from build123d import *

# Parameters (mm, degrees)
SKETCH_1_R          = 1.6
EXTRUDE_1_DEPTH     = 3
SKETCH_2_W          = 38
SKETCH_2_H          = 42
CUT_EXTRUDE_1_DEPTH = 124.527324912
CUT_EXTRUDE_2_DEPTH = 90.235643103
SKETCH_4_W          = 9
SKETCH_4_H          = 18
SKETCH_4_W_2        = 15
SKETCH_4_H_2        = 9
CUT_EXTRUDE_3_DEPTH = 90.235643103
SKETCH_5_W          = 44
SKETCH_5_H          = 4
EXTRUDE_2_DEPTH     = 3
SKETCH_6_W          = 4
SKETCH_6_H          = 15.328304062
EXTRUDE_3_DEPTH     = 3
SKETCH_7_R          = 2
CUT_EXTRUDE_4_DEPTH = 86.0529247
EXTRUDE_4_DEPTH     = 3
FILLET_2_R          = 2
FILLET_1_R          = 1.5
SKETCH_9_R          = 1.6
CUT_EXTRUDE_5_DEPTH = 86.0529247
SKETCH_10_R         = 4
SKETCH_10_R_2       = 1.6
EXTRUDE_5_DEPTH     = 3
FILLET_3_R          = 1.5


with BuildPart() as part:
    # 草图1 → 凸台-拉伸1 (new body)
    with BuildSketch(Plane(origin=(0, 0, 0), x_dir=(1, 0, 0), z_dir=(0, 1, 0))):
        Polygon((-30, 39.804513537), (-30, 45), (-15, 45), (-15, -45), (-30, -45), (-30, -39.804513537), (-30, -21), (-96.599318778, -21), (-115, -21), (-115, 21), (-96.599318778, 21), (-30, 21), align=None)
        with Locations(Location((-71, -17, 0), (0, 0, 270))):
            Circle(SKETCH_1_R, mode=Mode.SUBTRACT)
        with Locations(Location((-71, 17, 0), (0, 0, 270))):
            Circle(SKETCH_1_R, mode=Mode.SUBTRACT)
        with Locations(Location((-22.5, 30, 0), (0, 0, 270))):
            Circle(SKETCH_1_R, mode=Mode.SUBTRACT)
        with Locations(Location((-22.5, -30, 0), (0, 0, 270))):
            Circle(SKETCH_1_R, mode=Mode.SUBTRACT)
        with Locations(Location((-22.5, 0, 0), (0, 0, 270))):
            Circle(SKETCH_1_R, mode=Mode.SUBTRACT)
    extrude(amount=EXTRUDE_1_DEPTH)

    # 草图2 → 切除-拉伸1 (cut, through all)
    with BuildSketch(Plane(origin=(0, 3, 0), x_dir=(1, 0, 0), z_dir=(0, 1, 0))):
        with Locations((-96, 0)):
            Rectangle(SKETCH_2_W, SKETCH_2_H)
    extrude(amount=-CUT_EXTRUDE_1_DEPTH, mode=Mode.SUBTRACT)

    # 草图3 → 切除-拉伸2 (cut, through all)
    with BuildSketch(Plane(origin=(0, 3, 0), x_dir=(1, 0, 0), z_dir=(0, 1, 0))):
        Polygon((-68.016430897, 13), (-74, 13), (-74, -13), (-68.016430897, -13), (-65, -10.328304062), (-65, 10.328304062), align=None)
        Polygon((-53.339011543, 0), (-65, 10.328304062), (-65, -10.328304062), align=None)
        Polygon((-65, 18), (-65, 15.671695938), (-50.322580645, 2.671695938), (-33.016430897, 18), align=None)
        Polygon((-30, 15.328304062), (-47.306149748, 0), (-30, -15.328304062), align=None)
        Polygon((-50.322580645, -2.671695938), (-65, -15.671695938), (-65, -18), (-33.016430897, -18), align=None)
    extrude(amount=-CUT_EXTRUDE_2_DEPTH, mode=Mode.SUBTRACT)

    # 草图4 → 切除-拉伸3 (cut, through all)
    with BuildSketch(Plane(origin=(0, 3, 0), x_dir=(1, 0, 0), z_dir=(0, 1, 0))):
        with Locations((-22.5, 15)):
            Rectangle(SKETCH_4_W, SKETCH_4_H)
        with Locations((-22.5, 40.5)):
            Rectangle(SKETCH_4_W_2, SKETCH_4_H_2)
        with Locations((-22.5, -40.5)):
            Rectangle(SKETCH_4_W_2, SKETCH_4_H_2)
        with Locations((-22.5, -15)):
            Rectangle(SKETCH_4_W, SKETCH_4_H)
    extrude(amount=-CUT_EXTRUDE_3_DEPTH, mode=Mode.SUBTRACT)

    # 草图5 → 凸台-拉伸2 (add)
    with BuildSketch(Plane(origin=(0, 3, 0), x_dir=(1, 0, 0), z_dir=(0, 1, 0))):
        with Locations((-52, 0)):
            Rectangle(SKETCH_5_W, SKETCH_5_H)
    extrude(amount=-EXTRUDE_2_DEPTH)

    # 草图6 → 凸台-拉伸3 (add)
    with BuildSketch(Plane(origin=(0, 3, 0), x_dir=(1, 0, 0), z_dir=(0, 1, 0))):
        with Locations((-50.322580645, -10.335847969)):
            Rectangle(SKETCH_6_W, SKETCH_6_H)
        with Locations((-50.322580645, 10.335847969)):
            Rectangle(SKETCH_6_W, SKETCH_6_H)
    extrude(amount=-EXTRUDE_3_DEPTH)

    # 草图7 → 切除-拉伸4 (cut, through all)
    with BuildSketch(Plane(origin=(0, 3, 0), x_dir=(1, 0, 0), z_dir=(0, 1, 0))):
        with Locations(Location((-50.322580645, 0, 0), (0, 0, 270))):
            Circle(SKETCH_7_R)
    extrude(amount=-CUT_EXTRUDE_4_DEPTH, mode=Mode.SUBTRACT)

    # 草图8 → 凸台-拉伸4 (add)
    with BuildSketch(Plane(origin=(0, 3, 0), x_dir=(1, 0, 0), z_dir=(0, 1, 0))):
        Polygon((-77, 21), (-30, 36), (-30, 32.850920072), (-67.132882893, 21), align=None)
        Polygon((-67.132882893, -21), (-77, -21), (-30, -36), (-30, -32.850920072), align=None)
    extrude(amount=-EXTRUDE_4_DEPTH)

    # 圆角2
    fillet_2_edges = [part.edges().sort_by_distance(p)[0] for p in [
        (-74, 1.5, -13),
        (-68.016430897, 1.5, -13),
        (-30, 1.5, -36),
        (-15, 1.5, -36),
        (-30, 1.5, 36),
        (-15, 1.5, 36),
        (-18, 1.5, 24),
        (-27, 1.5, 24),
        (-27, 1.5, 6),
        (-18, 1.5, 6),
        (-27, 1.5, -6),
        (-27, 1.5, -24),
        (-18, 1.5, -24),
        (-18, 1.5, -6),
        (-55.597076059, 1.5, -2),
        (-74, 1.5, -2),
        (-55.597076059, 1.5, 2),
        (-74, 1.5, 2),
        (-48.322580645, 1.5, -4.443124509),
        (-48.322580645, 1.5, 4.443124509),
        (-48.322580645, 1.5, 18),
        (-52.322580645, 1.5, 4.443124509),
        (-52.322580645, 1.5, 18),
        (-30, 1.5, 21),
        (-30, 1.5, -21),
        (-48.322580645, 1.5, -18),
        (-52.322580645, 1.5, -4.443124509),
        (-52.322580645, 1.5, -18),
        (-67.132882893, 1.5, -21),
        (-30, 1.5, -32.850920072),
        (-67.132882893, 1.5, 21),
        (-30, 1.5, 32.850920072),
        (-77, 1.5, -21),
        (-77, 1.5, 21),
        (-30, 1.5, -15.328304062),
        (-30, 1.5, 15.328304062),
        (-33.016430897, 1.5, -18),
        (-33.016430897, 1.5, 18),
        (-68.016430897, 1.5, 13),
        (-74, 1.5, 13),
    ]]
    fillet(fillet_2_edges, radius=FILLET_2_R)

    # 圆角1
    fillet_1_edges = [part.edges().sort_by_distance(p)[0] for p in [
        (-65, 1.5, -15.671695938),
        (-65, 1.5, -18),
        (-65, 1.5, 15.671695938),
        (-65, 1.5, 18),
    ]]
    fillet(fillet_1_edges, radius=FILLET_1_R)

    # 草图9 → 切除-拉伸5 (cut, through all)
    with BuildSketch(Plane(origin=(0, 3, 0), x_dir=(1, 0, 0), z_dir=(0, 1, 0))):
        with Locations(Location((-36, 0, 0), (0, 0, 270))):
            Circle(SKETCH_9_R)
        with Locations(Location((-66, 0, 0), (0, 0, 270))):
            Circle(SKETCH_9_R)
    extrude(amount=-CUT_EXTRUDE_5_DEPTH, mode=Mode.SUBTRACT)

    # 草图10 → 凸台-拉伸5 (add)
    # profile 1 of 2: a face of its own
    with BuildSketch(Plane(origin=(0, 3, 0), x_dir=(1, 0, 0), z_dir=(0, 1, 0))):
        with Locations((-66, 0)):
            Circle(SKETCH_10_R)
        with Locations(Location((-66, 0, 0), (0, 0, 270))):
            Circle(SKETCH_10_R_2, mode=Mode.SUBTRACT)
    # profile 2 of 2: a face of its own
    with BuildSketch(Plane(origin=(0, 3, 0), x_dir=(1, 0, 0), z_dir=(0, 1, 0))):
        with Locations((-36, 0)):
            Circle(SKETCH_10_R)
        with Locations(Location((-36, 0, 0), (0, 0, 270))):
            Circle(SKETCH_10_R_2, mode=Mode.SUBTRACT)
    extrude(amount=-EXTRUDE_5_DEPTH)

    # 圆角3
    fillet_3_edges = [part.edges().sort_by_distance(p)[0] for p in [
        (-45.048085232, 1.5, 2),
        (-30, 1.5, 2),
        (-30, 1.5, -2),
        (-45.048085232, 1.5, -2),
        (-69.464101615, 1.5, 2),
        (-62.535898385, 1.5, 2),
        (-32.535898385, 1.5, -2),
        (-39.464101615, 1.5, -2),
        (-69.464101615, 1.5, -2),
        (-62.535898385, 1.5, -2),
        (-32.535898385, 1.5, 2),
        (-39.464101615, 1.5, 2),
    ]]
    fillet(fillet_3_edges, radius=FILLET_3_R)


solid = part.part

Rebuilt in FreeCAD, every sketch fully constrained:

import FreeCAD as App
import Part
import Sketcher
from FreeCAD import Vector
Q = App.Units.Quantity


def edges_at(feature, points):
    """Names of the edges that pass closest to the given points."""
    edges = feature.Shape.Edges
    near = lambda p: min(range(len(edges)), key=lambda i: edges[i].distToShape(Part.Vertex(*p))[0])
    return sorted({f"Edge{near(p) + 1}" for p in points})

doc = App.newDocument("Part")
body = doc.addObject("PartDesign::Body", "Body")

sketch1 = body.newObject("Sketcher::SketchObject", "Sketch")
sketch1.AttachmentSupport = (doc.getObject("XZ_Plane"), [""])
sketch1.MapMode = "FlatFace"
sketch1.addGeometry([
    Part.LineSegment(Vector(-30, -45, 0), Vector(-30, -21, 0)),
    Part.LineSegment(Vector(-30, -21, 0), Vector(-115, -21, 0)),
    Part.LineSegment(Vector(-115, -21, 0), Vector(-115, 21, 0)),
    Part.LineSegment(Vector(-115, 21, 0), Vector(-30, 21, 0)),
    Part.LineSegment(Vector(-30, 21, 0), Vector(-30, 45, 0)),
    Part.LineSegment(Vector(-30, 45, 0), Vector(-15, 45, 0)),
    Part.LineSegment(Vector(-15, 45, 0), Vector(-15, -45, 0)),
    Part.LineSegment(Vector(-15, -45, 0), Vector(-30, -45, 0)),
    Part.Circle(Vector(-22.5, 30, 0), Vector(0, 0, 1), 1.6),
    Part.Circle(Vector(-22.5, 0, 0), Vector(0, 0, 1), 1.6),
    Part.Circle(Vector(-71, 17, 0), Vector(0, 0, 1), 1.6),
    Part.Circle(Vector(-22.5, -30, 0), Vector(0, 0, 1), 1.6),
    Part.Circle(Vector(-71, -17, 0), Vector(0, 0, 1), 1.6),
], False)
sketch1.addConstraint([
    Sketcher.Constraint("Coincident", 0, 2, 1, 1),
    Sketcher.Constraint("Coincident", 1, 2, 2, 1),
    Sketcher.Constraint("Coincident", 2, 2, 3, 1),
    Sketcher.Constraint("Coincident", 3, 2, 4, 1),
    Sketcher.Constraint("Coincident", 4, 2, 5, 1),
    Sketcher.Constraint("Coincident", 5, 2, 6, 1),
    Sketcher.Constraint("Coincident", 6, 2, 7, 1),
    Sketcher.Constraint("Coincident", 7, 2, 0, 1),
    Sketcher.Constraint("Vertical", 0),
    Sketcher.Constraint("Horizontal", 1),
    Sketcher.Constraint("Vertical", 2),
    Sketcher.Constraint("Horizontal", 3),
    Sketcher.Constraint("Vertical", 4),
    Sketcher.Constraint("Horizontal", 5),
    Sketcher.Constraint("Vertical", 6),
    Sketcher.Constraint("Horizontal", 7),
    Sketcher.Constraint("Equal", 8, 9),
    Sketcher.Constraint("Equal", 9, 10),
    Sketcher.Constraint("Equal", 10, 11),
    Sketcher.Constraint("Equal", 11, 12),
    Sketcher.Constraint("Symmetric", 8, 3, 11, 3, -1),
    Sketcher.Constraint("Symmetric", 10, 3, 12, 3, -1),
    Sketcher.Constraint("Symmetric", 0, 2, 3, 2, -1),
    Sketcher.Constraint("PointOnObject", 9, 3, -1),
    Sketcher.Constraint("Vertical", 8, 3, 9, 3),
    Sketcher.Constraint("Equal", 0, 4),
    Sketcher.Constraint("Diameter", 8, Q("3.2 mm")),
    Sketcher.Constraint("DistanceX", 1, 2, 1, 1, Q("85 mm")),
    Sketcher.Constraint("DistanceX", 5, 1, 5, 2, Q("15 mm")),
    Sketcher.Constraint("DistanceY", 0, 1, 0, 2, Q("24 mm")),
    Sketcher.Constraint("DistanceY", 2, 1, 2, 2, Q("42 mm")),
    Sketcher.Constraint("DistanceY", -1, 1, 8, 3, Q("30 mm")),
    Sketcher.Constraint("DistanceX", 10, 3, -1, 1, Q("71 mm")),
    Sketcher.Constraint("DistanceY", -1, 1, 10, 3, Q("17 mm")),
    Sketcher.Constraint("DistanceX", 0, 2, -1, 1, Q("30 mm")),
    Sketcher.Constraint("DistanceX", 8, 3, -1, 1, Q("22.5 mm")),
])
pad1 = body.newObject("PartDesign::Pad", "Pad")
pad1.Profile = sketch1
pad1.Length = 3
pad1.Reversed = True

sketch2 = body.newObject("Sketcher::SketchObject", "Sketch001")
sketch2.AttachmentSupport = (doc.getObject("XZ_Plane"), [""])
sketch2.MapMode = "FlatFace"
sketch2.AttachmentOffset = App.Placement(Vector(0, 0, -3), App.Rotation())
sketch2.addGeometry([
    Part.LineSegment(Vector(-115, -21, 0), Vector(-115, 21, 0)),
    Part.LineSegment(Vector(-115, 21, 0), Vector(-77, 21, 0)),
    Part.LineSegment(Vector(-77, 21, 0), Vector(-77, -21, 0)),
    Part.LineSegment(Vector(-77, -21, 0), Vector(-115, -21, 0)),
], False)
sketch2.addConstraint([
    Sketcher.Constraint("Coincident", 0, 2, 1, 1),
    Sketcher.Constraint("Coincident", 1, 2, 2, 1),
    Sketcher.Constraint("Coincident", 2, 2, 3, 1),
    Sketcher.Constraint("Coincident", 3, 2, 0, 1),
    Sketcher.Constraint("Vertical", 0),
    Sketcher.Constraint("Horizontal", 1),
    Sketcher.Constraint("Vertical", 2),
    Sketcher.Constraint("Horizontal", 3),
    Sketcher.Constraint("DistanceX", 1, 1, 1, 2, Q("38 mm")),
    Sketcher.Constraint("DistanceY", 0, 1, 0, 2, Q("42 mm")),
    Sketcher.Constraint("DistanceX", 0, 2, -1, 1, Q("115 mm")),
    Sketcher.Constraint("DistanceY", -1, 1, 0, 2, Q("21 mm")),
])
pocket1 = body.newObject("PartDesign::Pocket", "Pocket")
pocket1.Profile = sketch2
pocket1.Type = "ThroughAll"
pocket1.Reversed = True

sketch3 = body.newObject("Sketcher::SketchObject", "Sketch002")
sketch3.AttachmentSupport = (doc.getObject("XZ_Plane"), [""])
sketch3.MapMode = "FlatFace"
sketch3.AttachmentOffset = App.Placement(Vector(0, 0, -3), App.Rotation())
sketch3.addGeometry([
    Part.LineSegment(Vector(-68, -13, 0), Vector(-74, -13, 0)),
    Part.LineSegment(Vector(-74, -13, 0), Vector(-74, 13, 0)),
    Part.LineSegment(Vector(-74, 13, 0), Vector(-68, 13, 0)),
    Part.LineSegment(Vector(-68, 13, 0), Vector(-65, 10.3, 0)),
    Part.LineSegment(Vector(-65, 10.3, 0), Vector(-53.3, 0, 0)),
    Part.LineSegment(Vector(-53.3, 0, 0), Vector(-65, -10.3, 0)),
    Part.LineSegment(Vector(-65, -10.3, 0), Vector(-68, -13, 0)),
    Part.LineSegment(Vector(-65, -18, 0), Vector(-65, -15.7, 0)),
    Part.LineSegment(Vector(-65, -15.7, 0), Vector(-50.3, -2.7, 0)),
    Part.LineSegment(Vector(-50.3, -2.7, 0), Vector(-33, -18, 0)),
    Part.LineSegment(Vector(-33, -18, 0), Vector(-65, -18, 0)),
    Part.LineSegment(Vector(-30, -15.3, 0), Vector(-47.3, 0, 0)),
    Part.LineSegment(Vector(-47.3, 0, 0), Vector(-30, 15.3, 0)),
    Part.LineSegment(Vector(-30, 15.3, 0), Vector(-30, -15.3, 0)),
    Part.LineSegment(Vector(-50.3, 2.7, 0), Vector(-65, 15.7, 0)),
    Part.LineSegment(Vector(-65, 15.7, 0), Vector(-65, 18, 0)),
    Part.LineSegment(Vector(-65, 18, 0), Vector(-33, 18, 0)),
    Part.LineSegment(Vector(-33, 18, 0), Vector(-50.3, 2.7, 0)),
], False)
sketch3.addConstraint([
    Sketcher.Constraint("Coincident", 0, 2, 1, 1),
    Sketcher.Constraint("Coincident", 1, 2, 2, 1),
    Sketcher.Constraint("Coincident", 2, 2, 3, 1),
    Sketcher.Constraint("Coincident", 3, 2, 4, 1),
    Sketcher.Constraint("Coincident", 4, 2, 5, 1),
    Sketcher.Constraint("Coincident", 5, 2, 6, 1),
    Sketcher.Constraint("Coincident", 6, 2, 0, 1),
    Sketcher.Constraint("Coincident", 7, 2, 8, 1),
    Sketcher.Constraint("Coincident", 8, 2, 9, 1),
    Sketcher.Constraint("Coincident", 9, 2, 10, 1),
    Sketcher.Constraint("Coincident", 10, 2, 7, 1),
    Sketcher.Constraint("Coincident", 11, 2, 12, 1),
    Sketcher.Constraint("Coincident", 12, 2, 13, 1),
    Sketcher.Constraint("Coincident", 13, 2, 11, 1),
    Sketcher.Constraint("Coincident", 14, 2, 15, 1),
    Sketcher.Constraint("Coincident", 15, 2, 16, 1),
    Sketcher.Constraint("Coincident", 16, 2, 17, 1),
    Sketcher.Constraint("Coincident", 17, 2, 14, 1),
    Sketcher.Constraint("Horizontal", 0),
    Sketcher.Constraint("Vertical", 1),
    Sketcher.Constraint("Horizontal", 2),
    Sketcher.Constraint("Vertical", 7),
    Sketcher.Constraint("Horizontal", 10),
    Sketcher.Constraint("Vertical", 13),
    Sketcher.Constraint("Vertical", 15),
    Sketcher.Constraint("Horizontal", 16),
    Sketcher.Constraint("Symmetric", 3, 2, 5, 2, -1),
    Sketcher.Constraint("Symmetric", 2, 2, 6, 2, -1),
    Sketcher.Constraint("Symmetric", 7, 2, 14, 2, -1),
    Sketcher.Constraint("Symmetric", 9, 2, 16, 2, -1),
    Sketcher.Constraint("Symmetric", 8, 2, 17, 2, -1),
    Sketcher.Constraint("PointOnObject", 4, 2, -1),
    Sketcher.Constraint("PointOnObject", 11, 2, -1),
    Sketcher.Constraint("Parallel", 3, 4),
    Sketcher.Constraint("Parallel", 6, 8),
    Sketcher.Constraint("Parallel", 4, 9),
    Sketcher.Constraint("Parallel", 9, 11),
    Sketcher.Constraint("Parallel", 8, 12),
    Sketcher.Constraint("Vertical", 5, 2, 7, 2),
    Sketcher.Constraint("Equal", 9, 11),
    Sketcher.Constraint("DistanceY", 1, 1, 1, 2, Q("26 mm")),
    Sketcher.Constraint("DistanceX", 0, 2, -1, 1, Q("74 mm")),
    Sketcher.Constraint("DistanceX", 3, 2, -1, 1, Q("65 mm")),
    Sketcher.Constraint("DistanceY", 9, 2, -1, 1, Q("18 mm")),
    Sketcher.Constraint("DistanceX", 12, 2, -1, 1, Q("30 mm")),
    Sketcher.Constraint("DistanceY", 7, 2, 3, 2, Q("26 mm")),
    Sketcher.Constraint("DistanceY", 8, 2, 3, 2, Q("13 mm")),
    Sketcher.Constraint("DistanceX", 6, 2, 9, 2, Q("35 mm")),
    Sketcher.Constraint("DistanceX", 0, 2, 0, 1, Q("5.983569 mm")),
])
pocket2 = body.newObject("PartDesign::Pocket", "Pocket001")
pocket2.Profile = sketch3
pocket2.Type = "ThroughAll"
pocket2.Reversed = True

sketch4 = body.newObject("Sketcher::SketchObject", "Sketch003")
sketch4.AttachmentSupport = (doc.getObject("XZ_Plane"), [""])
sketch4.MapMode = "FlatFace"
sketch4.AttachmentOffset = App.Placement(Vector(0, 0, -3), App.Rotation())
sketch4.addGeometry([
    Part.LineSegment(Vector(-27, -24, 0), Vector(-27, -6, 0)),
    Part.LineSegment(Vector(-27, -6, 0), Vector(-18, -6, 0)),
    Part.LineSegment(Vector(-18, -6, 0), Vector(-18, -24, 0)),
    Part.LineSegment(Vector(-18, -24, 0), Vector(-27, -24, 0)),
    Part.LineSegment(Vector(-30, -45, 0), Vector(-30, -36, 0)),
    Part.LineSegment(Vector(-30, -36, 0), Vector(-15, -36, 0)),
    Part.LineSegment(Vector(-15, -36, 0), Vector(-15, -45, 0)),
    Part.LineSegment(Vector(-15, -45, 0), Vector(-30, -45, 0)),
    Part.LineSegment(Vector(-30, 36, 0), Vector(-30, 45, 0)),
    Part.LineSegment(Vector(-30, 45, 0), Vector(-15, 45, 0)),
    Part.LineSegment(Vector(-15, 45, 0), Vector(-15, 36, 0)),
    Part.LineSegment(Vector(-15, 36, 0), Vector(-30, 36, 0)),
    Part.LineSegment(Vector(-27, 6, 0), Vector(-27, 24, 0)),
    Part.LineSegment(Vector(-27, 24, 0), Vector(-18, 24, 0)),
    Part.LineSegment(Vector(-18, 24, 0), Vector(-18, 6, 0)),
    Part.LineSegment(Vector(-18, 6, 0), Vector(-27, 6, 0)),
], False)
sketch4.addConstraint([
    Sketcher.Constraint("Coincident", 0, 2, 1, 1),
    Sketcher.Constraint("Coincident", 1, 2, 2, 1),
    Sketcher.Constraint("Coincident", 2, 2, 3, 1),
    Sketcher.Constraint("Coincident", 3, 2, 0, 1),
    Sketcher.Constraint("Coincident", 4, 2, 5, 1),
    Sketcher.Constraint("Coincident", 5, 2, 6, 1),
    Sketcher.Constraint("Coincident", 6, 2, 7, 1),
    Sketcher.Constraint("Coincident", 7, 2, 4, 1),
    Sketcher.Constraint("Coincident", 8, 2, 9, 1),
    Sketcher.Constraint("Coincident", 9, 2, 10, 1),
    Sketcher.Constraint("Coincident", 10, 2, 11, 1),
    Sketcher.Constraint("Coincident", 11, 2, 8, 1),
    Sketcher.Constraint("Coincident", 12, 2, 13, 1),
    Sketcher.Constraint("Coincident", 13, 2, 14, 1),
    Sketcher.Constraint("Coincident", 14, 2, 15, 1),
    Sketcher.Constraint("Coincident", 15, 2, 12, 1),
    Sketcher.Constraint("Vertical", 0),
    Sketcher.Constraint("Horizontal", 1),
    Sketcher.Constraint("Vertical", 2),
    Sketcher.Constraint("Horizontal", 3),
    Sketcher.Constraint("Vertical", 4),
    Sketcher.Constraint("Horizontal", 5),
    Sketcher.Constraint("Vertical", 6),
    Sketcher.Constraint("Horizontal", 7),
    Sketcher.Constraint("Vertical", 8),
    Sketcher.Constraint("Horizontal", 9),
    Sketcher.Constraint("Vertical", 10),
    Sketcher.Constraint("Horizontal", 11),
    Sketcher.Constraint("Vertical", 12),
    Sketcher.Constraint("Horizontal", 13),
    Sketcher.Constraint("Vertical", 14),
    Sketcher.Constraint("Horizontal", 15),
    Sketcher.Constraint("Symmetric", 7, 2, 8, 2, -1),
    Sketcher.Constraint("Symmetric", 5, 2, 10, 2, -1),
    Sketcher.Constraint("Symmetric", 3, 2, 12, 2, -1),
    Sketcher.Constraint("Symmetric", 1, 2, 14, 2, -1),
    Sketcher.Constraint("Equal", 15, 4),
    Sketcher.Constraint("DistanceX", 1, 1, 1, 2, Q("9 mm")),
    Sketcher.Constraint("DistanceX", 5, 1, 5, 2, Q("15 mm")),
    Sketcher.Constraint("DistanceY", 0, 1, 0, 2, Q("18 mm")),
    Sketcher.Constraint("DistanceX", 0, 2, -1, 1, Q("27 mm")),
    Sketcher.Constraint("DistanceY", 0, 2, -1, 1, Q("6 mm")),
    Sketcher.Constraint("DistanceX", 4, 2, -1, 1, Q("30 mm")),
    Sketcher.Constraint("DistanceY", 4, 2, -1, 1, Q("36 mm")),
])
pocket3 = body.newObject("PartDesign::Pocket", "Pocket002")
pocket3.Profile = sketch4
pocket3.Type = "ThroughAll"
pocket3.Reversed = True

sketch5 = body.newObject("Sketcher::SketchObject", "Sketch004")
sketch5.AttachmentSupport = (doc.getObject("XZ_Plane"), [""])
sketch5.MapMode = "FlatFace"
sketch5.AttachmentOffset = App.Placement(Vector(0, 0, -3), App.Rotation())
sketch5.addGeometry([
    Part.LineSegment(Vector(-74, -2, 0), Vector(-74, 2, 0)),
    Part.LineSegment(Vector(-74, 2, 0), Vector(-30, 2, 0)),
    Part.LineSegment(Vector(-30, 2, 0), Vector(-30, -2, 0)),
    Part.LineSegment(Vector(-30, -2, 0), Vector(-74, -2, 0)),
], False)
sketch5.addConstraint([
    Sketcher.Constraint("Coincident", 0, 2, 1, 1),
    Sketcher.Constraint("Coincident", 1, 2, 2, 1),
    Sketcher.Constraint("Coincident", 2, 2, 3, 1),
    Sketcher.Constraint("Coincident", 3, 2, 0, 1),
    Sketcher.Constraint("Vertical", 0),
    Sketcher.Constraint("Horizontal", 1),
    Sketcher.Constraint("Vertical", 2),
    Sketcher.Constraint("Horizontal", 3),
    Sketcher.Constraint("DistanceX", 1, 1, 1, 2, Q("44 mm")),
    Sketcher.Constraint("DistanceY", 0, 1, 0, 2, Q("4 mm")),
    Sketcher.Constraint("DistanceX", 0, 2, -1, 1, Q("74 mm")),
    Sketcher.Constraint("DistanceY", -1, 1, 0, 2, Q("2 mm")),
])
pad2 = body.newObject("PartDesign::Pad", "Pad001")
pad2.Profile = sketch5
pad2.Length = 3

sketch6 = body.newObject("Sketcher::SketchObject", "Sketch005")
sketch6.AttachmentSupport = (doc.getObject("XZ_Plane"), [""])
sketch6.MapMode = "FlatFace"
sketch6.AttachmentOffset = App.Placement(Vector(0, 0, -3), App.Rotation())
sketch6.addGeometry([
    Part.LineSegment(Vector(-52.3, 2.7, 0), Vector(-52.3, 18, 0)),
    Part.LineSegment(Vector(-52.3, 18, 0), Vector(-48.3, 18, 0)),
    Part.LineSegment(Vector(-48.3, 18, 0), Vector(-48.3, 2.7, 0)),
    Part.LineSegment(Vector(-48.3, 2.7, 0), Vector(-52.3, 2.7, 0)),
    Part.LineSegment(Vector(-52.3, -18, 0), Vector(-52.3, -2.7, 0)),
    Part.LineSegment(Vector(-52.3, -2.7, 0), Vector(-48.3, -2.7, 0)),
    Part.LineSegment(Vector(-48.3, -2.7, 0), Vector(-48.3, -18, 0)),
    Part.LineSegment(Vector(-48.3, -18, 0), Vector(-52.3, -18, 0)),
], False)
sketch6.addConstraint([
    Sketcher.Constraint("Coincident", 0, 2, 1, 1),
    Sketcher.Constraint("Coincident", 1, 2, 2, 1),
    Sketcher.Constraint("Coincident", 2, 2, 3, 1),
    Sketcher.Constraint("Coincident", 3, 2, 0, 1),
    Sketcher.Constraint("Coincident", 4, 2, 5, 1),
    Sketcher.Constraint("Coincident", 5, 2, 6, 1),
    Sketcher.Constraint("Coincident", 6, 2, 7, 1),
    Sketcher.Constraint("Coincident", 7, 2, 4, 1),
    Sketcher.Constraint("Vertical", 0),
    Sketcher.Constraint("Horizontal", 1),
    Sketcher.Constraint("Vertical", 2),
    Sketcher.Constraint("Horizontal", 3),
    Sketcher.Constraint("Vertical", 4),
    Sketcher.Constraint("Horizontal", 5),
    Sketcher.Constraint("Vertical", 6),
    Sketcher.Constraint("Horizontal", 7),
    Sketcher.Constraint("Symmetric", 3, 2, 4, 2, -1),
    Sketcher.Constraint("Symmetric", 1, 2, 6, 2, -1),
    Sketcher.Constraint("DistanceX", 1, 1, 1, 2, Q("4 mm")),
    Sketcher.Constraint("DistanceY", -1, 1, 0, 2, Q("18 mm")),
    Sketcher.Constraint("DistanceY", 0, 1, 0, 2, Q("15.328304 mm")),
    Sketcher.Constraint("DistanceX", 0, 2, -1, 1, Q("52.322581 mm")),
])
pad3 = body.newObject("PartDesign::Pad", "Pad002")
pad3.Profile = sketch6
pad3.Length = 3

sketch7 = body.newObject("Sketcher::SketchObject", "Sketch006")
sketch7.AttachmentSupport = (doc.getObject("XZ_Plane"), [""])
sketch7.MapMode = "FlatFace"
sketch7.AttachmentOffset = App.Placement(Vector(0, 0, -3), App.Rotation())
sketch7.addGeometry(Part.Circle(Vector(-50.3, 0, 0), Vector(0, 0, 1), 2), False)
sketch7.addConstraint([
    Sketcher.Constraint("PointOnObject", 0, 3, -1),
    Sketcher.Constraint("Diameter", 0, Q("4 mm")),
    Sketcher.Constraint("DistanceX", 0, 3, -1, 1, Q("50.322581 mm")),
])
pocket4 = body.newObject("PartDesign::Pocket", "Pocket003")
pocket4.Profile = sketch7
pocket4.Type = "ThroughAll"
pocket4.Reversed = True

sketch8 = body.newObject("Sketcher::SketchObject", "Sketch007")
sketch8.AttachmentSupport = (doc.getObject("XZ_Plane"), [""])
sketch8.MapMode = "FlatFace"
sketch8.AttachmentOffset = App.Placement(Vector(0, 0, -3), App.Rotation())
sketch8.addGeometry([
    Part.LineSegment(Vector(-30, -36, 0), Vector(-77, -21, 0)),
    Part.LineSegment(Vector(-77, -21, 0), Vector(-67.1, -21, 0)),
    Part.LineSegment(Vector(-67.1, -21, 0), Vector(-30, -32.9, 0)),
    Part.LineSegment(Vector(-30, -32.9, 0), Vector(-30, -36, 0)),
    Part.LineSegment(Vector(-67.1, 21, 0), Vector(-77, 21, 0)),
    Part.LineSegment(Vector(-77, 21, 0), Vector(-30, 36, 0)),
    Part.LineSegment(Vector(-30, 36, 0), Vector(-30, 32.9, 0)),
    Part.LineSegment(Vector(-30, 32.9, 0), Vector(-67.1, 21, 0)),
], False)
sketch8.addConstraint([
    Sketcher.Constraint("Coincident", 0, 2, 1, 1),
    Sketcher.Constraint("Coincident", 1, 2, 2, 1),
    Sketcher.Constraint("Coincident", 2, 2, 3, 1),
    Sketcher.Constraint("Coincident", 3, 2, 0, 1),
    Sketcher.Constraint("Coincident", 4, 2, 5, 1),
    Sketcher.Constraint("Coincident", 5, 2, 6, 1),
    Sketcher.Constraint("Coincident", 6, 2, 7, 1),
    Sketcher.Constraint("Coincident", 7, 2, 4, 1),
    Sketcher.Constraint("Horizontal", 1),
    Sketcher.Constraint("Vertical", 3),
    Sketcher.Constraint("Horizontal", 4),
    Sketcher.Constraint("Vertical", 6),
    Sketcher.Constraint("Symmetric", 0, 2, 4, 2, -1),
    Sketcher.Constraint("Symmetric", 3, 2, 5, 2, -1),
    Sketcher.Constraint("Parallel", 0, 2),
    Sketcher.Constraint("Parallel", 5, 7),
    Sketcher.Constraint("Vertical", 1, 2, 7, 2),
    Sketcher.Constraint("DistanceX", 0, 2, -1, 1, Q("77 mm")),
    Sketcher.Constraint("DistanceY", 0, 2, -1, 1, Q("21 mm")),
    Sketcher.Constraint("DistanceX", 2, 2, -1, 1, Q("30 mm")),
    Sketcher.Constraint("DistanceY", 3, 2, -1, 1, Q("36 mm")),
    Sketcher.Constraint("DistanceY", 3, 2, 3, 1, Q("3.14908 mm")),
])
pad4 = body.newObject("PartDesign::Pad", "Pad003")
pad4.Profile = sketch8
pad4.Length = 3
doc.recompute()

fillet = body.newObject("PartDesign::Fillet", "Fillet")
fillet.Base = (pad4, edges_at(pad4, [
    (-74, 1.5, -13),
    (-68.016, 1.5, -13),
    (-30, 1.5, -36),
    (-15, 1.5, -36),
    (-30, 1.5, 36),
    (-15, 1.5, 36),
    (-18, 1.5, 24),
    (-27, 1.5, 24),
    (-27, 1.5, 6),
    (-18, 1.5, 6),
    (-27, 1.5, -6),
    (-27, 1.5, -24),
    (-18, 1.5, -24),
    (-18, 1.5, -6),
    (-55.597, 1.5, -2),
    (-74, 1.5, -2),
    (-55.597, 1.5, 2),
    (-74, 1.5, 2),
    (-48.323, 1.5, -4.443),
    (-48.323, 1.5, 4.443),
    (-48.323, 1.5, 18),
    (-52.323, 1.5, 4.443),
    (-52.323, 1.5, 18),
    (-30, 1.5, 21),
    (-30, 1.5, -21),
    (-48.323, 1.5, -18),
    (-52.323, 1.5, -4.443),
    (-52.323, 1.5, -18),
    (-67.133, 1.5, -21),
    (-30, 1.5, -32.851),
    (-67.133, 1.5, 21),
    (-30, 1.5, 32.851),
    (-77, 1.5, -21),
    (-77, 1.5, 21),
    (-30, 1.5, -15.328),
    (-30, 1.5, 15.328),
    (-33.016, 1.5, -18),
    (-33.016, 1.5, 18),
    (-68.016, 1.5, 13),
    (-74, 1.5, 13),
]))
fillet.Radius = 2
doc.recompute()

fillet2 = body.newObject("PartDesign::Fillet", "Fillet001")
fillet2.Base = (fillet, edges_at(fillet, [
    (-65, 1.5, -15.672),
    (-65, 1.5, -18),
    (-65, 1.5, 15.672),
    (-65, 1.5, 18),
]))
fillet2.Radius = 1.5

sketch9 = body.newObject("Sketcher::SketchObject", "Sketch008")
sketch9.AttachmentSupport = (doc.getObject("XZ_Plane"), [""])
sketch9.MapMode = "FlatFace"
sketch9.AttachmentOffset = App.Placement(Vector(0, 0, -3), App.Rotation())
sketch9.addGeometry([
    Part.Circle(Vector(-36, 0, 0), Vector(0, 0, 1), 1.6),
    Part.Circle(Vector(-66, 0, 0), Vector(0, 0, 1), 1.6),
], False)
sketch9.addConstraint([
    Sketcher.Constraint("Equal", 0, 1),
    Sketcher.Constraint("PointOnObject", 0, 3, -1),
    Sketcher.Constraint("PointOnObject", 1, 3, -1),
    Sketcher.Constraint("Diameter", 0, Q("3.2 mm")),
    Sketcher.Constraint("DistanceX", 0, 3, -1, 1, Q("36 mm")),
    Sketcher.Constraint("DistanceX", 1, 3, -1, 1, Q("66 mm")),
])
pocket5 = body.newObject("PartDesign::Pocket", "Pocket004")
pocket5.Profile = sketch9
pocket5.Type = "ThroughAll"
pocket5.Reversed = True

sketch10 = body.newObject("Sketcher::SketchObject", "Sketch009")
sketch10.AttachmentSupport = (doc.getObject("XZ_Plane"), [""])
sketch10.MapMode = "FlatFace"
sketch10.AttachmentOffset = App.Placement(Vector(0, 0, -3), App.Rotation())
sketch10.addGeometry([
    Part.Circle(Vector(-66, 0, 0), Vector(0, 0, 1), 4),
    Part.Circle(Vector(-66, 0, 0), Vector(0, 0, 1), 1.6),
    Part.Circle(Vector(-36, 0, 0), Vector(0, 0, 1), 4),
    Part.Circle(Vector(-36, 0, 0), Vector(0, 0, 1), 1.6),
], False)
sketch10.addConstraint([
    Sketcher.Constraint("Coincident", 1, 3, 0, 3),
    Sketcher.Constraint("Coincident", 3, 3, 2, 3),
    Sketcher.Constraint("Equal", 0, 2),
    Sketcher.Constraint("Equal", 1, 3),
    Sketcher.Constraint("PointOnObject", 0, 3, -1),
    Sketcher.Constraint("PointOnObject", 2, 3, -1),
    Sketcher.Constraint("Diameter", 0, Q("8 mm")),
    Sketcher.Constraint("Diameter", 1, Q("3.2 mm")),
    Sketcher.Constraint("DistanceX", 0, 3, -1, 1, Q("66 mm")),
    Sketcher.Constraint("DistanceX", 2, 3, -1, 1, Q("36 mm")),
])
pad5 = body.newObject("PartDesign::Pad", "Pad004")
pad5.Profile = sketch10
pad5.Length = 3
doc.recompute()

fillet3 = body.newObject("PartDesign::Fillet", "Fillet002")
fillet3.Base = (pad5, edges_at(pad5, [
    (-45.048, 1.5, 2),
    (-30, 1.5, 2),
    (-30, 1.5, -2),
    (-45.048, 1.5, -2),
    (-69.464, 1.5, 2),
    (-62.536, 1.5, 2),
    (-32.536, 1.5, -2),
    (-39.464, 1.5, -2),
    (-69.464, 1.5, -2),
    (-62.536, 1.5, -2),
    (-32.536, 1.5, 2),
    (-39.464, 1.5, 2),
]))
fillet3.Radius = 1.5

doc.recompute()
